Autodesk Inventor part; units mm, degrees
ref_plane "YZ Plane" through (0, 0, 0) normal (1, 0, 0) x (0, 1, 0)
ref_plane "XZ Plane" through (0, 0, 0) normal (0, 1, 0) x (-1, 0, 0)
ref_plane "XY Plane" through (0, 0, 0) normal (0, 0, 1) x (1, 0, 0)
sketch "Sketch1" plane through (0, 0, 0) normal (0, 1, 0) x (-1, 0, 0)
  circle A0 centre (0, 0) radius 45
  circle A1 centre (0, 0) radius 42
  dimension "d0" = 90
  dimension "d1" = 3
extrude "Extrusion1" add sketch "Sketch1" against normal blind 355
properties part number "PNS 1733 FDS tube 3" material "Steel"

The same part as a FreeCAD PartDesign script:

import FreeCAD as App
import Part
import Sketcher

doc = App.newDocument("Part")
body = doc.addObject("PartDesign::Body", "Body")

sketch1 = doc.addObject("Sketcher::SketchObject", "Sketch")
body.addObject(sketch1)
sketch1.AttachmentSupport = (doc.XZ_Plane, [""])
sketch1.MapMode = "FlatFace"
sketch1.addGeometry([
    Part.Circle(App.Vector(0, 0, 0), App.Vector(0, 0, 1), 45),
    Part.Circle(App.Vector(0, 0, 0), App.Vector(0, 0, 1), 42),
], False)
sketch1.addConstraint([
    Sketcher.Constraint("Coincident", 0, 3, -1, 1),
    Sketcher.Constraint("Coincident", 1, 3, -1, 1),
    Sketcher.Constraint("Diameter", 0, 90.0),
    Sketcher.Constraint("Diameter", 1, 84.0),
])
pad1 = doc.addObject("PartDesign::Pad", "Pad")
body.addObject(pad1)
pad1.Profile = sketch1
pad1.Length = 355

doc.recompute()
